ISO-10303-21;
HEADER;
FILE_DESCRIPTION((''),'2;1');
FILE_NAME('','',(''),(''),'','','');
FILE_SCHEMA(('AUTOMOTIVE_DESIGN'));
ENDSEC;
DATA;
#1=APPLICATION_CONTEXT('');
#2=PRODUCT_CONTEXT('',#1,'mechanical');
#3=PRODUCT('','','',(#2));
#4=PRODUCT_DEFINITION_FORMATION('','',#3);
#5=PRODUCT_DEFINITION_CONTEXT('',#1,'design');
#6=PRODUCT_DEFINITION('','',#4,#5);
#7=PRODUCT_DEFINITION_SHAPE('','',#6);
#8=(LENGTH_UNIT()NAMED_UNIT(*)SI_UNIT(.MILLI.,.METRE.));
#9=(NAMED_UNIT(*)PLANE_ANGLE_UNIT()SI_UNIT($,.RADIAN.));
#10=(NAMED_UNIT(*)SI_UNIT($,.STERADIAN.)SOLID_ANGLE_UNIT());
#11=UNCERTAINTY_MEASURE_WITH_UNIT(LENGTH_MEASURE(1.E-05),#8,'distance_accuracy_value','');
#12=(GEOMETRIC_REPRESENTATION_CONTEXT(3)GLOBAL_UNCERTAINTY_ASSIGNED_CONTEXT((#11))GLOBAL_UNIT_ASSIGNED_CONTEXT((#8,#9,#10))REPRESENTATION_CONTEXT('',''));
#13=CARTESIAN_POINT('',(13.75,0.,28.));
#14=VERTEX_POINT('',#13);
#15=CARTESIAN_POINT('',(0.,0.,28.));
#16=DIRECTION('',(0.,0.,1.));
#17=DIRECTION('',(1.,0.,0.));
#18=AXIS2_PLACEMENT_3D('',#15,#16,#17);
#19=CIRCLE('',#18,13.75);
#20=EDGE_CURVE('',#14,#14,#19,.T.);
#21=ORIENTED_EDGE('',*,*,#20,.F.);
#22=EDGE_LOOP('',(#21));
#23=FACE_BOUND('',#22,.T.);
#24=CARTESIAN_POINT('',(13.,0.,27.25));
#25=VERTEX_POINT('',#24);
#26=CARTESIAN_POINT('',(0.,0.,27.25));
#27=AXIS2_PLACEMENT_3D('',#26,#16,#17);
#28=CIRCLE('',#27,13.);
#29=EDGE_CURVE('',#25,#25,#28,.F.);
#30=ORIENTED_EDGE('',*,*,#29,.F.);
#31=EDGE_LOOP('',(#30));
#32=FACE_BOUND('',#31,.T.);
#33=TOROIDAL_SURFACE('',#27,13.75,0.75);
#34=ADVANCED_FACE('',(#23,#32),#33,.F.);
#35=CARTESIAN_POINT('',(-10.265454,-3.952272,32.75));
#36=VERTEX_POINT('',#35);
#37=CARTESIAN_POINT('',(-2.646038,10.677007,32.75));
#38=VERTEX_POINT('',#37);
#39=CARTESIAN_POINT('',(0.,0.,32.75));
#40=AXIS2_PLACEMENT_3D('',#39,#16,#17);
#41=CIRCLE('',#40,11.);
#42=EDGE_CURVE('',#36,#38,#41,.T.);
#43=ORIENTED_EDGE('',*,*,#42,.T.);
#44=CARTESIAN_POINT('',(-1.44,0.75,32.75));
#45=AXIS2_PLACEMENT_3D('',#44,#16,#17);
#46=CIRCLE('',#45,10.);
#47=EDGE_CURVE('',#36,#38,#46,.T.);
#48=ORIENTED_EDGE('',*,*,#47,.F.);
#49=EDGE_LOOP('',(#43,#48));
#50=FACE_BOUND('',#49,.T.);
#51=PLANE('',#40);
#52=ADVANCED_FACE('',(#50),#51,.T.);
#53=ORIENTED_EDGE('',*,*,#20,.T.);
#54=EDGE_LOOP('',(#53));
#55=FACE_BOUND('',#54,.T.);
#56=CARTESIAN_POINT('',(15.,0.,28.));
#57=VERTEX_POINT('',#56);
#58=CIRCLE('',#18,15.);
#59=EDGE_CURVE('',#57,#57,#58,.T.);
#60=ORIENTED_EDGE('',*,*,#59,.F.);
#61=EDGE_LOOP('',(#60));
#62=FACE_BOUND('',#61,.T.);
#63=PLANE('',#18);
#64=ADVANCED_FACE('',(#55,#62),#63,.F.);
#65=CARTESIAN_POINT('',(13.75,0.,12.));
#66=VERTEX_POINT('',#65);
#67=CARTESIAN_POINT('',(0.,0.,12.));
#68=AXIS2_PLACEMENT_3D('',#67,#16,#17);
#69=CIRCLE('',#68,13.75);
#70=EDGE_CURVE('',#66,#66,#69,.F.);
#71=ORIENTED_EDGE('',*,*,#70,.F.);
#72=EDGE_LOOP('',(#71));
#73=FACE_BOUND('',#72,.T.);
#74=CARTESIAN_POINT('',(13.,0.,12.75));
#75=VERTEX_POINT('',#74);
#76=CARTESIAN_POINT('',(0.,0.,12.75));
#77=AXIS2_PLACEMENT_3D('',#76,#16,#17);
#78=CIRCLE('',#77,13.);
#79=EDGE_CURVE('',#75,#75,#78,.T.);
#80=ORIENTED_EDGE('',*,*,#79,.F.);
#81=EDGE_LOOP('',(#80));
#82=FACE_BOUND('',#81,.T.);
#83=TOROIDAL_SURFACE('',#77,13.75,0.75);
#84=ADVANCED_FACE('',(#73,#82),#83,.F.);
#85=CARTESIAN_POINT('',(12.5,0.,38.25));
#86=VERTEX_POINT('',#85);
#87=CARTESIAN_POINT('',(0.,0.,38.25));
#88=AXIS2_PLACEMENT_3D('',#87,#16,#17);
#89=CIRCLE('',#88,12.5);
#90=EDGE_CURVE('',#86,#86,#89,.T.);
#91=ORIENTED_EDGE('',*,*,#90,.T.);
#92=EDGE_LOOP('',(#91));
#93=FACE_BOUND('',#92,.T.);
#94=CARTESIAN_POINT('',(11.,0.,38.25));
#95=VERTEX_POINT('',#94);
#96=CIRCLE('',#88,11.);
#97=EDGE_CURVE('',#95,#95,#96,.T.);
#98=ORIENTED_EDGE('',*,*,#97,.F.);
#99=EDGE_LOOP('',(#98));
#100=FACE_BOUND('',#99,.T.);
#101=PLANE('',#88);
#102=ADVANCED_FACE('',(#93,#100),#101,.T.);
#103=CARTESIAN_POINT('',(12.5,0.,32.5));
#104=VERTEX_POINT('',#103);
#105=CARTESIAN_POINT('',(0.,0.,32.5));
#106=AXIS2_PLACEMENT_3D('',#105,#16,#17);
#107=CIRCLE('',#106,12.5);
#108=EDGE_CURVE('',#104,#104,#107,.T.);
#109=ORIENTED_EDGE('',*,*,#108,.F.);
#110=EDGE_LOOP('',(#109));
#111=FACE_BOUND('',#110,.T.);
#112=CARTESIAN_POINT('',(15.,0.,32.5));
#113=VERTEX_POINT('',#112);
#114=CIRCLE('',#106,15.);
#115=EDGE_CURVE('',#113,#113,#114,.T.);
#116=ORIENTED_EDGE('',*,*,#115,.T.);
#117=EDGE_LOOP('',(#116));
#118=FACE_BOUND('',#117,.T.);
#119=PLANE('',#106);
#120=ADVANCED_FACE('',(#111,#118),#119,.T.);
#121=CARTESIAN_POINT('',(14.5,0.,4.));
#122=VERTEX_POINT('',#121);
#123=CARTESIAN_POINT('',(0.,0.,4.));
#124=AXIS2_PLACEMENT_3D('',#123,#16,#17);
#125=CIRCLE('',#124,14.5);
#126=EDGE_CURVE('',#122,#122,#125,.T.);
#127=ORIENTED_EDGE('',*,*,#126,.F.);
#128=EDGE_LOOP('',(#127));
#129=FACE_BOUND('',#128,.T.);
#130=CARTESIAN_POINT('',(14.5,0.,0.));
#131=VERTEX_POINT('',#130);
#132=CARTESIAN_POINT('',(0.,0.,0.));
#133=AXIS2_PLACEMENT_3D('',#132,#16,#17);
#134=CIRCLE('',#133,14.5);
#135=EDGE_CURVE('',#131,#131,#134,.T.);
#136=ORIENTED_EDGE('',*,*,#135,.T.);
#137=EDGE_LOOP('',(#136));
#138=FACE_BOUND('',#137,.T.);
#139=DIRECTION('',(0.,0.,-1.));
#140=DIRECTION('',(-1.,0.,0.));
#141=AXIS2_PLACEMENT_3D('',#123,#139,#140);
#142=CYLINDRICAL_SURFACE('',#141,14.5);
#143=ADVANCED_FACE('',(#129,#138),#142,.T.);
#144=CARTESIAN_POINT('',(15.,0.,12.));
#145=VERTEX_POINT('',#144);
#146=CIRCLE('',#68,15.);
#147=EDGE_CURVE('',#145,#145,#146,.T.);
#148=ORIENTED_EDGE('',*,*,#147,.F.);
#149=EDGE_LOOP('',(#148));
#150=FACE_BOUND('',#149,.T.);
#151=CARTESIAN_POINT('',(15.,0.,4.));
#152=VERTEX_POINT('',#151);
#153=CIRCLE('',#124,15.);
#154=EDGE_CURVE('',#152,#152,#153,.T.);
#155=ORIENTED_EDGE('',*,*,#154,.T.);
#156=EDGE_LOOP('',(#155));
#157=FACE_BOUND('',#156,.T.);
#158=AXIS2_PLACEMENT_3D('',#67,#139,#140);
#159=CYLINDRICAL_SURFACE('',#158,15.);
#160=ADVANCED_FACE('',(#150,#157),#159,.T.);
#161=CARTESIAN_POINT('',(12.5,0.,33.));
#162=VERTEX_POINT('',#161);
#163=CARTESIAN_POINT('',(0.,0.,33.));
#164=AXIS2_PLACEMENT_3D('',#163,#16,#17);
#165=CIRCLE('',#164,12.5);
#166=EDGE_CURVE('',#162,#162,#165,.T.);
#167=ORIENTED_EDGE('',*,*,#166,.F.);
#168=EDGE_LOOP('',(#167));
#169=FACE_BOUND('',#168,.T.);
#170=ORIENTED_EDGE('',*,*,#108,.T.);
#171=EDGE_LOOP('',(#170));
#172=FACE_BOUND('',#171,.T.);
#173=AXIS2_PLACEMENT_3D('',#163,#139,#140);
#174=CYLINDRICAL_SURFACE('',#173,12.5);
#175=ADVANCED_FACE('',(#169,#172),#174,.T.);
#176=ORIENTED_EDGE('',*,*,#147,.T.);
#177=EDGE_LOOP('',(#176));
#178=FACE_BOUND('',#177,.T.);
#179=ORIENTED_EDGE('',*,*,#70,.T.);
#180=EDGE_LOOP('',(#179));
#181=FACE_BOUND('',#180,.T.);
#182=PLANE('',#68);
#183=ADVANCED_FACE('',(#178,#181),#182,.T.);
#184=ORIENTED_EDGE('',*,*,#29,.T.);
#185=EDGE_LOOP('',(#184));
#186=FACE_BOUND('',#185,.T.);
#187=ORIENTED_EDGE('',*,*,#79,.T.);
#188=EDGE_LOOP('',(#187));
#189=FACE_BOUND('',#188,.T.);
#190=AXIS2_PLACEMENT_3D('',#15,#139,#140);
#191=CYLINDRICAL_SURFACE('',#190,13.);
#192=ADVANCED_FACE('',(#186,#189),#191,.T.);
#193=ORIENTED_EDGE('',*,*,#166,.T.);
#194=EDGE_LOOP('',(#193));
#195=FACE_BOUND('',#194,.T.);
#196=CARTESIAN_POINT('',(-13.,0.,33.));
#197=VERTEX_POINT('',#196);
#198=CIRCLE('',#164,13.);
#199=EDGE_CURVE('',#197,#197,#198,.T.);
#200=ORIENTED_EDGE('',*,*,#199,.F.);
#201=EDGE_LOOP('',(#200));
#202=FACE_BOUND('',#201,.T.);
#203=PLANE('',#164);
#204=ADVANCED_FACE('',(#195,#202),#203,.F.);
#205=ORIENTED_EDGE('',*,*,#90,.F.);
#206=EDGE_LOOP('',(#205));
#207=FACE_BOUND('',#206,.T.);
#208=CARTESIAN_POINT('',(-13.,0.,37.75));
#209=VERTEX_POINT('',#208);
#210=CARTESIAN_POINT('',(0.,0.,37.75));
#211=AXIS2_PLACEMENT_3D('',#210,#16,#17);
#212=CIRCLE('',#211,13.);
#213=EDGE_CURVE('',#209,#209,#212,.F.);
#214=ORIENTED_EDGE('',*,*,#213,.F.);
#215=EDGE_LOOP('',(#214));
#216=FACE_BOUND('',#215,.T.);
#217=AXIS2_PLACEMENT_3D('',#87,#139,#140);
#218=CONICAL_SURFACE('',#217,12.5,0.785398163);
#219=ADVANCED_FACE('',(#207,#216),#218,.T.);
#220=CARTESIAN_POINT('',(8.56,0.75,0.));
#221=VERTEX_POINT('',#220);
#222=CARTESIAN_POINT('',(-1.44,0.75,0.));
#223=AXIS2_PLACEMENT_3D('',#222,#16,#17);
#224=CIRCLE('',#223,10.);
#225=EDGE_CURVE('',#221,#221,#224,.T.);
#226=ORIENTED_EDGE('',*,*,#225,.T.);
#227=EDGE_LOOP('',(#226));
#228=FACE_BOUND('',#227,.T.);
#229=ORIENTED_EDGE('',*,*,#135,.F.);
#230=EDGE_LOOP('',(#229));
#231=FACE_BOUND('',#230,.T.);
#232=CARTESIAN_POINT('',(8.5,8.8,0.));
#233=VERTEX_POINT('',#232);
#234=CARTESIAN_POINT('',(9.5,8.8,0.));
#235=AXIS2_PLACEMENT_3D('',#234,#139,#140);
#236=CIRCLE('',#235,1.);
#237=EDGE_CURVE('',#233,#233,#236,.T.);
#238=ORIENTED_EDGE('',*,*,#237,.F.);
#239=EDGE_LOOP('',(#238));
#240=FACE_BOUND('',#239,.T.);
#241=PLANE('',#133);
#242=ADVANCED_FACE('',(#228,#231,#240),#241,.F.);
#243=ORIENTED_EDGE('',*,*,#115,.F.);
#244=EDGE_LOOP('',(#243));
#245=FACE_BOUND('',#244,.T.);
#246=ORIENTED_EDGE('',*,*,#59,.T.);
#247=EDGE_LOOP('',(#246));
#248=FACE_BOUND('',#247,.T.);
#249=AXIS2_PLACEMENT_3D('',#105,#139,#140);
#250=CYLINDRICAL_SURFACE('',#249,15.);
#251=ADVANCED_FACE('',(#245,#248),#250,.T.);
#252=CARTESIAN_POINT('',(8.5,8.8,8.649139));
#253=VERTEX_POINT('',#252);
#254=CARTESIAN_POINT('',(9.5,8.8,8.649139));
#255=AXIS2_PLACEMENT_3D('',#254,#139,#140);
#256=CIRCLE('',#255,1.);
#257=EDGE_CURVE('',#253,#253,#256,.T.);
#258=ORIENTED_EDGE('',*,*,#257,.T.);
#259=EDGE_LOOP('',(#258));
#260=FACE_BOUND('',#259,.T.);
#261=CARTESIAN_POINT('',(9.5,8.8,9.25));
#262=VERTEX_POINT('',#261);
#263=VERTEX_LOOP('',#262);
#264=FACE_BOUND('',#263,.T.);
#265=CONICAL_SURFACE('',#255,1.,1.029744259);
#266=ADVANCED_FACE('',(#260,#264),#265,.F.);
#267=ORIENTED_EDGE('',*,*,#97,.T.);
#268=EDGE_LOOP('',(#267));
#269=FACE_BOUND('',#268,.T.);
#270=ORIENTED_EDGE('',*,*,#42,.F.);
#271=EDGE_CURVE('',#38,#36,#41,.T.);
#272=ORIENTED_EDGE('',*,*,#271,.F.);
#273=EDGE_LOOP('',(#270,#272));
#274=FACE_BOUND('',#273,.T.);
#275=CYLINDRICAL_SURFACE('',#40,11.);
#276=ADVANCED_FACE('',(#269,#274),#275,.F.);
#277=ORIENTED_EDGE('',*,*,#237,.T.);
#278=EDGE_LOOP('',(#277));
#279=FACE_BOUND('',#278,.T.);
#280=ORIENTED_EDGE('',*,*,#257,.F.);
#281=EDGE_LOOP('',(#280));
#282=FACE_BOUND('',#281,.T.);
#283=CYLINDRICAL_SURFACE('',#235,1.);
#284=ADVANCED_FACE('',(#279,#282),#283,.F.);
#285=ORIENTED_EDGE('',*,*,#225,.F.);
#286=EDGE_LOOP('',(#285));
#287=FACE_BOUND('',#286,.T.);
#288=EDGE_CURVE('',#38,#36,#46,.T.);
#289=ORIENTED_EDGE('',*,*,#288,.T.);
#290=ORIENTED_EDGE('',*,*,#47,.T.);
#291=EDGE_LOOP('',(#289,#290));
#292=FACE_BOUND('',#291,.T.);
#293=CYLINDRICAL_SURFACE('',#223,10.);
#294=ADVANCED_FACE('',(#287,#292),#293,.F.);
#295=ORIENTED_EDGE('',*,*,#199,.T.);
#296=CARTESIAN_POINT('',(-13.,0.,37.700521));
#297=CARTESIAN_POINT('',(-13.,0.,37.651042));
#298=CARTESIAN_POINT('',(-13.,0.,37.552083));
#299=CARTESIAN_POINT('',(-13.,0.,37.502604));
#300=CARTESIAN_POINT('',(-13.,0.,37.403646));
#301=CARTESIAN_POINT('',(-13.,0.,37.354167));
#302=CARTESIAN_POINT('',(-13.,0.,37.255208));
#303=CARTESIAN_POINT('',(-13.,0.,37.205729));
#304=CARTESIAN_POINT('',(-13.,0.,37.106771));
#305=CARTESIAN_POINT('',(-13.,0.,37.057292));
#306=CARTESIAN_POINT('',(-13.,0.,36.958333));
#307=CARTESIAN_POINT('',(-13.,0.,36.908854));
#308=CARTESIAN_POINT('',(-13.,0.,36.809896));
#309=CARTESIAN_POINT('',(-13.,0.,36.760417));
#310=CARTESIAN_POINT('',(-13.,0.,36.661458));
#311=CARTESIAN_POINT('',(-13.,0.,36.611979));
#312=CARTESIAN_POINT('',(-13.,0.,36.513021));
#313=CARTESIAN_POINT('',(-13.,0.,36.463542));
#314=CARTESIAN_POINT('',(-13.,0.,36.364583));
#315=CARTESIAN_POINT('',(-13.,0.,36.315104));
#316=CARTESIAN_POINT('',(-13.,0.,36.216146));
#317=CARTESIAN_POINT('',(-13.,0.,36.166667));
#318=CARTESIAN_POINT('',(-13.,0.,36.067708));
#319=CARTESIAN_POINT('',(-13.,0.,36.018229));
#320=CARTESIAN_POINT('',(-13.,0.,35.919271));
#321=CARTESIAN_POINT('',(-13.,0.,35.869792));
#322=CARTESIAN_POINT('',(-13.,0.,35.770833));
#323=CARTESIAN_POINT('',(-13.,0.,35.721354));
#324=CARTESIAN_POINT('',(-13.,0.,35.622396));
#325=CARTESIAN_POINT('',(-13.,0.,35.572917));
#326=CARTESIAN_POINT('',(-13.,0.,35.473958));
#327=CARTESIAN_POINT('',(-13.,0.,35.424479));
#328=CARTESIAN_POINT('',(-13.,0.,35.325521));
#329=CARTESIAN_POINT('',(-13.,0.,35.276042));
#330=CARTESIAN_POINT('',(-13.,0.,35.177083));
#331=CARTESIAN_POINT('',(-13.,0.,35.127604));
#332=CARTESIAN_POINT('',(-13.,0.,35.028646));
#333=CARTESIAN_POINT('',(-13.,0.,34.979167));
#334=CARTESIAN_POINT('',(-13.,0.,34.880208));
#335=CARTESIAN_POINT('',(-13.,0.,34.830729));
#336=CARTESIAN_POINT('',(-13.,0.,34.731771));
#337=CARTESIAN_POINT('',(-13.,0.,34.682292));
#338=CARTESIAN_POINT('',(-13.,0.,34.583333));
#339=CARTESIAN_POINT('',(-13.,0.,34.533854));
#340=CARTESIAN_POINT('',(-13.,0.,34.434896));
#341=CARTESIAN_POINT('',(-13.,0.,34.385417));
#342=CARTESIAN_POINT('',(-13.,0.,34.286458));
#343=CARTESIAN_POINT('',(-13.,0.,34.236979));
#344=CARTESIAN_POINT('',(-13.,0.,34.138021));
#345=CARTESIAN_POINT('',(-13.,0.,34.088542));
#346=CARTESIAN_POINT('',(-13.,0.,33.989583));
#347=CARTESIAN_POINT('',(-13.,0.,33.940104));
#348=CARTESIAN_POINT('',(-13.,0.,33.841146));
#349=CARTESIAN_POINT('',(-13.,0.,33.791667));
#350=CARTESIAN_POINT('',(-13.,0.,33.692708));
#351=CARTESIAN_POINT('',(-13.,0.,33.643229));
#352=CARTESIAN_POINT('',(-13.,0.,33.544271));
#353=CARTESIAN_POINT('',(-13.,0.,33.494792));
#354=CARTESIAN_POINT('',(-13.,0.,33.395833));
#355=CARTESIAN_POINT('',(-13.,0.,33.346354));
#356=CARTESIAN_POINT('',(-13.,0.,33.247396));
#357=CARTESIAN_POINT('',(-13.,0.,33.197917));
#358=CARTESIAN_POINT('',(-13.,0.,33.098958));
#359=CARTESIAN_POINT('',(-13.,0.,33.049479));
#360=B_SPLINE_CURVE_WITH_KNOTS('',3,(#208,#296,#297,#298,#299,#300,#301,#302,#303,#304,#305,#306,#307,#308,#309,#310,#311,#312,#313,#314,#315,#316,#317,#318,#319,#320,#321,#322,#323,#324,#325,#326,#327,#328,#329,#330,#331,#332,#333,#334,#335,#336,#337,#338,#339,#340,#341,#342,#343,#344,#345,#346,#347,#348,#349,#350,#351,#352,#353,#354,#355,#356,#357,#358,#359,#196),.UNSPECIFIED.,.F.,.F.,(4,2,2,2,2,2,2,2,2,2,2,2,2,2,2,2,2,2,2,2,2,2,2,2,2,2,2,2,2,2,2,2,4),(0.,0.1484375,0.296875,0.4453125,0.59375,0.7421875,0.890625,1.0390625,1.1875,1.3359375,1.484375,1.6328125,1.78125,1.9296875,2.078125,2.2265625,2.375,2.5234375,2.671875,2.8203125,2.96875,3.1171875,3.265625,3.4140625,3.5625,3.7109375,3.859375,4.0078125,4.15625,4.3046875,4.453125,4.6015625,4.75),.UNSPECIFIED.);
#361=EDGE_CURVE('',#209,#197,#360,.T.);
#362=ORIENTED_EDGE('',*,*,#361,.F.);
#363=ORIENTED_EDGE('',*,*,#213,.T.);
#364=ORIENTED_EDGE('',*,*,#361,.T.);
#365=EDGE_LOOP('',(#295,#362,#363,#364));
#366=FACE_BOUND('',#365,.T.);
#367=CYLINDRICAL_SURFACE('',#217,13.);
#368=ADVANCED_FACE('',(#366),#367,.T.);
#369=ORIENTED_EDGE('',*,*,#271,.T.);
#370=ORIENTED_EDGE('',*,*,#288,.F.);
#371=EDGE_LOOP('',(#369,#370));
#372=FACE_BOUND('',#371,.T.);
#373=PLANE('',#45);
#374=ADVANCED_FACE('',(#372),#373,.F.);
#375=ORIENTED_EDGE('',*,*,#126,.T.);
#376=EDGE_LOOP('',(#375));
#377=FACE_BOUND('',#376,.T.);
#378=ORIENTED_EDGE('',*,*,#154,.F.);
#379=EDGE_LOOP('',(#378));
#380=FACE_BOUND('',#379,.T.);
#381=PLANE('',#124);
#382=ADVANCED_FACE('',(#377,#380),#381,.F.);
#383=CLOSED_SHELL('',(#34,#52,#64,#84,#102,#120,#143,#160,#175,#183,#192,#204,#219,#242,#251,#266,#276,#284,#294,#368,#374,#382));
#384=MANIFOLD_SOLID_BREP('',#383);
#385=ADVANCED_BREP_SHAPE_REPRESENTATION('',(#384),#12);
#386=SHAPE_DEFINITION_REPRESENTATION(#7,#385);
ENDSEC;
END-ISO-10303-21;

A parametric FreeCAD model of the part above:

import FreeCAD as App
import Part
import Sketcher
from FreeCAD import Vector
Q = App.Units.Quantity


def edges_at(feature, points):
    """Names of the edges that pass closest to the given points."""
    edges = feature.Shape.Edges
    near = lambda p: min(range(len(edges)), key=lambda i: edges[i].distToShape(Part.Vertex(*p))[0])
    return sorted({f"Edge{near(p) + 1}" for p in points})

doc = App.newDocument("Part")
body = doc.addObject("PartDesign::Body", "Body")

sketch1 = doc.addObject("Sketcher::SketchObject", "Sketch")
body.addObject(sketch1)
sketch1.AttachmentSupport = (doc.XY_Plane, [""])
sketch1.MapMode = "FlatFace"
sketch1.addGeometry(Part.Circle(Vector(0, 0, 0), Vector(0, 0, 1), 14), False)
sketch1.addConstraint([
    Sketcher.Constraint("Coincident", 0, 3, -1, 1),
    Sketcher.Constraint("Diameter", 0, Q("29 mm")),
])
pad1 = doc.addObject("PartDesign::Pad", "Pad")
body.addObject(pad1)
pad1.Profile = sketch1
pad1.Length = 4

sketch2 = doc.addObject("Sketcher::SketchObject", "Sketch001")
body.addObject(sketch2)
sketch2.AttachmentSupport = (doc.XY_Plane, [""])
sketch2.MapMode = "FlatFace"
sketch2.AttachmentOffset = App.Placement(Vector(0, 0, 4), App.Rotation())
sketch2.addGeometry(Part.Circle(Vector(0, 0, 0), Vector(0, 0, 1), 15), False)
sketch2.addConstraint([
    Sketcher.Constraint("Coincident", 0, 3, -1, 1),
    Sketcher.Constraint("Diameter", 0, Q("30 mm")),
])
pad2 = doc.addObject("PartDesign::Pad", "Pad001")
body.addObject(pad2)
pad2.Profile = sketch2
pad2.Length = 8

sketch3 = doc.addObject("Sketcher::SketchObject", "Sketch002")
body.addObject(sketch3)
sketch3.AttachmentSupport = (doc.XY_Plane, [""])
sketch3.MapMode = "FlatFace"
sketch3.AttachmentOffset = App.Placement(Vector(0, 0, 12), App.Rotation())
sketch3.addGeometry(Part.Circle(Vector(0, 0, 0), Vector(0, 0, 1), 13), False)
sketch3.addConstraint([
    Sketcher.Constraint("Coincident", 0, 3, -1, 1),
    Sketcher.Constraint("Diameter", 0, Q("26 mm")),
])
pad3 = doc.addObject("PartDesign::Pad", "Pad002")
body.addObject(pad3)
pad3.Profile = sketch3
pad3.Length = 16

sketch4 = doc.addObject("Sketcher::SketchObject", "Sketch003")
body.addObject(sketch4)
sketch4.AttachmentSupport = (doc.XY_Plane, [""])
sketch4.MapMode = "FlatFace"
sketch4.AttachmentOffset = App.Placement(Vector(0, 0, 28), App.Rotation())
sketch4.addGeometry(Part.Circle(Vector(0, 0, 0), Vector(0, 0, 1), 15), False)
sketch4.addConstraint([
    Sketcher.Constraint("Coincident", 0, 3, -1, 1),
    Sketcher.Constraint("Diameter", 0, Q("30 mm")),
])
pad4 = doc.addObject("PartDesign::Pad", "Pad003")
body.addObject(pad4)
pad4.Profile = sketch4
pad4.Length = 4.5

sketch5 = doc.addObject("Sketcher::SketchObject", "Sketch004")
body.addObject(sketch5)
sketch5.AttachmentSupport = (doc.XY_Plane, [""])
sketch5.MapMode = "FlatFace"
sketch5.AttachmentOffset = App.Placement(Vector(0, 0, 32.5), App.Rotation())
sketch5.addGeometry(Part.Circle(Vector(0, 0, 0), Vector(0, 0, 1), 12), False)
sketch5.addConstraint([
    Sketcher.Constraint("Coincident", 0, 3, -1, 1),
    Sketcher.Constraint("Diameter", 0, Q("25 mm")),
])
pad5 = doc.addObject("PartDesign::Pad", "Pad004")
body.addObject(pad5)
pad5.Profile = sketch5
pad5.Length = 0.5

sketch6 = doc.addObject("Sketcher::SketchObject", "Sketch005")
body.addObject(sketch6)
sketch6.AttachmentSupport = (doc.XY_Plane, [""])
sketch6.MapMode = "FlatFace"
sketch6.AttachmentOffset = App.Placement(Vector(0, 0, 33), App.Rotation())
sketch6.addGeometry(Part.Circle(Vector(0, 0, 0), Vector(0, 0, 1), 13), False)
sketch6.addConstraint([
    Sketcher.Constraint("Coincident", 0, 3, -1, 1),
    Sketcher.Constraint("Diameter", 0, Q("26 mm")),
])
pad6 = doc.addObject("PartDesign::Pad", "Pad005")
body.addObject(pad6)
pad6.Profile = sketch6
pad6.Length = 5.25

sketch7 = doc.addObject("Sketcher::SketchObject", "Sketch006")
body.addObject(sketch7)
sketch7.AttachmentSupport = (doc.XY_Plane, [""])
sketch7.MapMode = "FlatFace"
sketch7.AttachmentOffset = App.Placement(Vector(0, 0, 38.25), App.Rotation())
sketch7.addGeometry(Part.Circle(Vector(0, 0, 0), Vector(0, 0, 1), 11), False)
sketch7.addConstraint([
    Sketcher.Constraint("Coincident", 0, 3, -1, 1),
    Sketcher.Constraint("Diameter", 0, Q("22 mm")),
])
pocket1 = doc.addObject("PartDesign::Pocket", "Pocket")
body.addObject(pocket1)
pocket1.Profile = sketch7
pocket1.Length = 5.5

sketch8 = doc.addObject("Sketcher::SketchObject", "Sketch007")
body.addObject(sketch8)
sketch8.AttachmentSupport = (doc.XY_Plane, [""])
sketch8.MapMode = "FlatFace"
sketch8.AttachmentOffset = App.Placement(Vector(0, 0, 32.75), App.Rotation())
sketch8.addGeometry(Part.Circle(Vector(-1, 1, 0), Vector(0, 0, 1), 10), False)
sketch8.addConstraint([
    Sketcher.Constraint("Diameter", 0, Q("20 mm")),
    Sketcher.Constraint("DistanceX", 0, 3, -1, 1, Q("1.44 mm")),
    Sketcher.Constraint("DistanceY", -1, 1, 0, 3, Q("0.75 mm")),
])
pocket2 = doc.addObject("PartDesign::Pocket", "Pocket001")
body.addObject(pocket2)
pocket2.Profile = sketch8
pocket2.Length = 32.75
doc.recompute()

fillet = doc.addObject("PartDesign::Fillet", "Fillet")
body.addObject(fillet)
fillet.Base = (pocket2, edges_at(pocket2, [(-13, 0, 12), (-13, 0, 28)]))
fillet.Radius = 0.75
doc.recompute()

chamfer = doc.addObject("PartDesign::Chamfer", "Chamfer")
body.addObject(chamfer)
chamfer.Base = (fillet, edges_at(fillet, [(-13, 0, 38.25)]))
chamfer.Size = 0.5

sketch9 = doc.addObject("Sketcher::SketchObject", "Sketch008")
body.addObject(sketch9)
sketch9.AttachmentSupport = (doc.XY_Plane, [""])
sketch9.MapMode = "FlatFace"
sketch9.addGeometry(Part.Circle(Vector(9.5, 8.8, 0), Vector(0, 0, 1), 1), False)
sketch9.addConstraint([
    Sketcher.Constraint("Diameter", 0, Q("2 mm")),
    Sketcher.Constraint("DistanceX", -1, 1, 0, 3, Q("9.5 mm")),
    Sketcher.Constraint("DistanceY", -1, 1, 0, 3, Q("8.8 mm")),
])
doc.recompute()
hole = doc.addObject("PartDesign::Hole", "Hole")
body.addObject(hole)
hole.Profile = sketch9
hole.ThreadType = "None"
hole.Diameter = 2
hole.DepthType = "Dimension"
hole.Depth = 8.649139
hole.DrillPoint = "Angled"
hole.DrillPointAngle = 118
hole.Reversed = True

doc.recompute()
